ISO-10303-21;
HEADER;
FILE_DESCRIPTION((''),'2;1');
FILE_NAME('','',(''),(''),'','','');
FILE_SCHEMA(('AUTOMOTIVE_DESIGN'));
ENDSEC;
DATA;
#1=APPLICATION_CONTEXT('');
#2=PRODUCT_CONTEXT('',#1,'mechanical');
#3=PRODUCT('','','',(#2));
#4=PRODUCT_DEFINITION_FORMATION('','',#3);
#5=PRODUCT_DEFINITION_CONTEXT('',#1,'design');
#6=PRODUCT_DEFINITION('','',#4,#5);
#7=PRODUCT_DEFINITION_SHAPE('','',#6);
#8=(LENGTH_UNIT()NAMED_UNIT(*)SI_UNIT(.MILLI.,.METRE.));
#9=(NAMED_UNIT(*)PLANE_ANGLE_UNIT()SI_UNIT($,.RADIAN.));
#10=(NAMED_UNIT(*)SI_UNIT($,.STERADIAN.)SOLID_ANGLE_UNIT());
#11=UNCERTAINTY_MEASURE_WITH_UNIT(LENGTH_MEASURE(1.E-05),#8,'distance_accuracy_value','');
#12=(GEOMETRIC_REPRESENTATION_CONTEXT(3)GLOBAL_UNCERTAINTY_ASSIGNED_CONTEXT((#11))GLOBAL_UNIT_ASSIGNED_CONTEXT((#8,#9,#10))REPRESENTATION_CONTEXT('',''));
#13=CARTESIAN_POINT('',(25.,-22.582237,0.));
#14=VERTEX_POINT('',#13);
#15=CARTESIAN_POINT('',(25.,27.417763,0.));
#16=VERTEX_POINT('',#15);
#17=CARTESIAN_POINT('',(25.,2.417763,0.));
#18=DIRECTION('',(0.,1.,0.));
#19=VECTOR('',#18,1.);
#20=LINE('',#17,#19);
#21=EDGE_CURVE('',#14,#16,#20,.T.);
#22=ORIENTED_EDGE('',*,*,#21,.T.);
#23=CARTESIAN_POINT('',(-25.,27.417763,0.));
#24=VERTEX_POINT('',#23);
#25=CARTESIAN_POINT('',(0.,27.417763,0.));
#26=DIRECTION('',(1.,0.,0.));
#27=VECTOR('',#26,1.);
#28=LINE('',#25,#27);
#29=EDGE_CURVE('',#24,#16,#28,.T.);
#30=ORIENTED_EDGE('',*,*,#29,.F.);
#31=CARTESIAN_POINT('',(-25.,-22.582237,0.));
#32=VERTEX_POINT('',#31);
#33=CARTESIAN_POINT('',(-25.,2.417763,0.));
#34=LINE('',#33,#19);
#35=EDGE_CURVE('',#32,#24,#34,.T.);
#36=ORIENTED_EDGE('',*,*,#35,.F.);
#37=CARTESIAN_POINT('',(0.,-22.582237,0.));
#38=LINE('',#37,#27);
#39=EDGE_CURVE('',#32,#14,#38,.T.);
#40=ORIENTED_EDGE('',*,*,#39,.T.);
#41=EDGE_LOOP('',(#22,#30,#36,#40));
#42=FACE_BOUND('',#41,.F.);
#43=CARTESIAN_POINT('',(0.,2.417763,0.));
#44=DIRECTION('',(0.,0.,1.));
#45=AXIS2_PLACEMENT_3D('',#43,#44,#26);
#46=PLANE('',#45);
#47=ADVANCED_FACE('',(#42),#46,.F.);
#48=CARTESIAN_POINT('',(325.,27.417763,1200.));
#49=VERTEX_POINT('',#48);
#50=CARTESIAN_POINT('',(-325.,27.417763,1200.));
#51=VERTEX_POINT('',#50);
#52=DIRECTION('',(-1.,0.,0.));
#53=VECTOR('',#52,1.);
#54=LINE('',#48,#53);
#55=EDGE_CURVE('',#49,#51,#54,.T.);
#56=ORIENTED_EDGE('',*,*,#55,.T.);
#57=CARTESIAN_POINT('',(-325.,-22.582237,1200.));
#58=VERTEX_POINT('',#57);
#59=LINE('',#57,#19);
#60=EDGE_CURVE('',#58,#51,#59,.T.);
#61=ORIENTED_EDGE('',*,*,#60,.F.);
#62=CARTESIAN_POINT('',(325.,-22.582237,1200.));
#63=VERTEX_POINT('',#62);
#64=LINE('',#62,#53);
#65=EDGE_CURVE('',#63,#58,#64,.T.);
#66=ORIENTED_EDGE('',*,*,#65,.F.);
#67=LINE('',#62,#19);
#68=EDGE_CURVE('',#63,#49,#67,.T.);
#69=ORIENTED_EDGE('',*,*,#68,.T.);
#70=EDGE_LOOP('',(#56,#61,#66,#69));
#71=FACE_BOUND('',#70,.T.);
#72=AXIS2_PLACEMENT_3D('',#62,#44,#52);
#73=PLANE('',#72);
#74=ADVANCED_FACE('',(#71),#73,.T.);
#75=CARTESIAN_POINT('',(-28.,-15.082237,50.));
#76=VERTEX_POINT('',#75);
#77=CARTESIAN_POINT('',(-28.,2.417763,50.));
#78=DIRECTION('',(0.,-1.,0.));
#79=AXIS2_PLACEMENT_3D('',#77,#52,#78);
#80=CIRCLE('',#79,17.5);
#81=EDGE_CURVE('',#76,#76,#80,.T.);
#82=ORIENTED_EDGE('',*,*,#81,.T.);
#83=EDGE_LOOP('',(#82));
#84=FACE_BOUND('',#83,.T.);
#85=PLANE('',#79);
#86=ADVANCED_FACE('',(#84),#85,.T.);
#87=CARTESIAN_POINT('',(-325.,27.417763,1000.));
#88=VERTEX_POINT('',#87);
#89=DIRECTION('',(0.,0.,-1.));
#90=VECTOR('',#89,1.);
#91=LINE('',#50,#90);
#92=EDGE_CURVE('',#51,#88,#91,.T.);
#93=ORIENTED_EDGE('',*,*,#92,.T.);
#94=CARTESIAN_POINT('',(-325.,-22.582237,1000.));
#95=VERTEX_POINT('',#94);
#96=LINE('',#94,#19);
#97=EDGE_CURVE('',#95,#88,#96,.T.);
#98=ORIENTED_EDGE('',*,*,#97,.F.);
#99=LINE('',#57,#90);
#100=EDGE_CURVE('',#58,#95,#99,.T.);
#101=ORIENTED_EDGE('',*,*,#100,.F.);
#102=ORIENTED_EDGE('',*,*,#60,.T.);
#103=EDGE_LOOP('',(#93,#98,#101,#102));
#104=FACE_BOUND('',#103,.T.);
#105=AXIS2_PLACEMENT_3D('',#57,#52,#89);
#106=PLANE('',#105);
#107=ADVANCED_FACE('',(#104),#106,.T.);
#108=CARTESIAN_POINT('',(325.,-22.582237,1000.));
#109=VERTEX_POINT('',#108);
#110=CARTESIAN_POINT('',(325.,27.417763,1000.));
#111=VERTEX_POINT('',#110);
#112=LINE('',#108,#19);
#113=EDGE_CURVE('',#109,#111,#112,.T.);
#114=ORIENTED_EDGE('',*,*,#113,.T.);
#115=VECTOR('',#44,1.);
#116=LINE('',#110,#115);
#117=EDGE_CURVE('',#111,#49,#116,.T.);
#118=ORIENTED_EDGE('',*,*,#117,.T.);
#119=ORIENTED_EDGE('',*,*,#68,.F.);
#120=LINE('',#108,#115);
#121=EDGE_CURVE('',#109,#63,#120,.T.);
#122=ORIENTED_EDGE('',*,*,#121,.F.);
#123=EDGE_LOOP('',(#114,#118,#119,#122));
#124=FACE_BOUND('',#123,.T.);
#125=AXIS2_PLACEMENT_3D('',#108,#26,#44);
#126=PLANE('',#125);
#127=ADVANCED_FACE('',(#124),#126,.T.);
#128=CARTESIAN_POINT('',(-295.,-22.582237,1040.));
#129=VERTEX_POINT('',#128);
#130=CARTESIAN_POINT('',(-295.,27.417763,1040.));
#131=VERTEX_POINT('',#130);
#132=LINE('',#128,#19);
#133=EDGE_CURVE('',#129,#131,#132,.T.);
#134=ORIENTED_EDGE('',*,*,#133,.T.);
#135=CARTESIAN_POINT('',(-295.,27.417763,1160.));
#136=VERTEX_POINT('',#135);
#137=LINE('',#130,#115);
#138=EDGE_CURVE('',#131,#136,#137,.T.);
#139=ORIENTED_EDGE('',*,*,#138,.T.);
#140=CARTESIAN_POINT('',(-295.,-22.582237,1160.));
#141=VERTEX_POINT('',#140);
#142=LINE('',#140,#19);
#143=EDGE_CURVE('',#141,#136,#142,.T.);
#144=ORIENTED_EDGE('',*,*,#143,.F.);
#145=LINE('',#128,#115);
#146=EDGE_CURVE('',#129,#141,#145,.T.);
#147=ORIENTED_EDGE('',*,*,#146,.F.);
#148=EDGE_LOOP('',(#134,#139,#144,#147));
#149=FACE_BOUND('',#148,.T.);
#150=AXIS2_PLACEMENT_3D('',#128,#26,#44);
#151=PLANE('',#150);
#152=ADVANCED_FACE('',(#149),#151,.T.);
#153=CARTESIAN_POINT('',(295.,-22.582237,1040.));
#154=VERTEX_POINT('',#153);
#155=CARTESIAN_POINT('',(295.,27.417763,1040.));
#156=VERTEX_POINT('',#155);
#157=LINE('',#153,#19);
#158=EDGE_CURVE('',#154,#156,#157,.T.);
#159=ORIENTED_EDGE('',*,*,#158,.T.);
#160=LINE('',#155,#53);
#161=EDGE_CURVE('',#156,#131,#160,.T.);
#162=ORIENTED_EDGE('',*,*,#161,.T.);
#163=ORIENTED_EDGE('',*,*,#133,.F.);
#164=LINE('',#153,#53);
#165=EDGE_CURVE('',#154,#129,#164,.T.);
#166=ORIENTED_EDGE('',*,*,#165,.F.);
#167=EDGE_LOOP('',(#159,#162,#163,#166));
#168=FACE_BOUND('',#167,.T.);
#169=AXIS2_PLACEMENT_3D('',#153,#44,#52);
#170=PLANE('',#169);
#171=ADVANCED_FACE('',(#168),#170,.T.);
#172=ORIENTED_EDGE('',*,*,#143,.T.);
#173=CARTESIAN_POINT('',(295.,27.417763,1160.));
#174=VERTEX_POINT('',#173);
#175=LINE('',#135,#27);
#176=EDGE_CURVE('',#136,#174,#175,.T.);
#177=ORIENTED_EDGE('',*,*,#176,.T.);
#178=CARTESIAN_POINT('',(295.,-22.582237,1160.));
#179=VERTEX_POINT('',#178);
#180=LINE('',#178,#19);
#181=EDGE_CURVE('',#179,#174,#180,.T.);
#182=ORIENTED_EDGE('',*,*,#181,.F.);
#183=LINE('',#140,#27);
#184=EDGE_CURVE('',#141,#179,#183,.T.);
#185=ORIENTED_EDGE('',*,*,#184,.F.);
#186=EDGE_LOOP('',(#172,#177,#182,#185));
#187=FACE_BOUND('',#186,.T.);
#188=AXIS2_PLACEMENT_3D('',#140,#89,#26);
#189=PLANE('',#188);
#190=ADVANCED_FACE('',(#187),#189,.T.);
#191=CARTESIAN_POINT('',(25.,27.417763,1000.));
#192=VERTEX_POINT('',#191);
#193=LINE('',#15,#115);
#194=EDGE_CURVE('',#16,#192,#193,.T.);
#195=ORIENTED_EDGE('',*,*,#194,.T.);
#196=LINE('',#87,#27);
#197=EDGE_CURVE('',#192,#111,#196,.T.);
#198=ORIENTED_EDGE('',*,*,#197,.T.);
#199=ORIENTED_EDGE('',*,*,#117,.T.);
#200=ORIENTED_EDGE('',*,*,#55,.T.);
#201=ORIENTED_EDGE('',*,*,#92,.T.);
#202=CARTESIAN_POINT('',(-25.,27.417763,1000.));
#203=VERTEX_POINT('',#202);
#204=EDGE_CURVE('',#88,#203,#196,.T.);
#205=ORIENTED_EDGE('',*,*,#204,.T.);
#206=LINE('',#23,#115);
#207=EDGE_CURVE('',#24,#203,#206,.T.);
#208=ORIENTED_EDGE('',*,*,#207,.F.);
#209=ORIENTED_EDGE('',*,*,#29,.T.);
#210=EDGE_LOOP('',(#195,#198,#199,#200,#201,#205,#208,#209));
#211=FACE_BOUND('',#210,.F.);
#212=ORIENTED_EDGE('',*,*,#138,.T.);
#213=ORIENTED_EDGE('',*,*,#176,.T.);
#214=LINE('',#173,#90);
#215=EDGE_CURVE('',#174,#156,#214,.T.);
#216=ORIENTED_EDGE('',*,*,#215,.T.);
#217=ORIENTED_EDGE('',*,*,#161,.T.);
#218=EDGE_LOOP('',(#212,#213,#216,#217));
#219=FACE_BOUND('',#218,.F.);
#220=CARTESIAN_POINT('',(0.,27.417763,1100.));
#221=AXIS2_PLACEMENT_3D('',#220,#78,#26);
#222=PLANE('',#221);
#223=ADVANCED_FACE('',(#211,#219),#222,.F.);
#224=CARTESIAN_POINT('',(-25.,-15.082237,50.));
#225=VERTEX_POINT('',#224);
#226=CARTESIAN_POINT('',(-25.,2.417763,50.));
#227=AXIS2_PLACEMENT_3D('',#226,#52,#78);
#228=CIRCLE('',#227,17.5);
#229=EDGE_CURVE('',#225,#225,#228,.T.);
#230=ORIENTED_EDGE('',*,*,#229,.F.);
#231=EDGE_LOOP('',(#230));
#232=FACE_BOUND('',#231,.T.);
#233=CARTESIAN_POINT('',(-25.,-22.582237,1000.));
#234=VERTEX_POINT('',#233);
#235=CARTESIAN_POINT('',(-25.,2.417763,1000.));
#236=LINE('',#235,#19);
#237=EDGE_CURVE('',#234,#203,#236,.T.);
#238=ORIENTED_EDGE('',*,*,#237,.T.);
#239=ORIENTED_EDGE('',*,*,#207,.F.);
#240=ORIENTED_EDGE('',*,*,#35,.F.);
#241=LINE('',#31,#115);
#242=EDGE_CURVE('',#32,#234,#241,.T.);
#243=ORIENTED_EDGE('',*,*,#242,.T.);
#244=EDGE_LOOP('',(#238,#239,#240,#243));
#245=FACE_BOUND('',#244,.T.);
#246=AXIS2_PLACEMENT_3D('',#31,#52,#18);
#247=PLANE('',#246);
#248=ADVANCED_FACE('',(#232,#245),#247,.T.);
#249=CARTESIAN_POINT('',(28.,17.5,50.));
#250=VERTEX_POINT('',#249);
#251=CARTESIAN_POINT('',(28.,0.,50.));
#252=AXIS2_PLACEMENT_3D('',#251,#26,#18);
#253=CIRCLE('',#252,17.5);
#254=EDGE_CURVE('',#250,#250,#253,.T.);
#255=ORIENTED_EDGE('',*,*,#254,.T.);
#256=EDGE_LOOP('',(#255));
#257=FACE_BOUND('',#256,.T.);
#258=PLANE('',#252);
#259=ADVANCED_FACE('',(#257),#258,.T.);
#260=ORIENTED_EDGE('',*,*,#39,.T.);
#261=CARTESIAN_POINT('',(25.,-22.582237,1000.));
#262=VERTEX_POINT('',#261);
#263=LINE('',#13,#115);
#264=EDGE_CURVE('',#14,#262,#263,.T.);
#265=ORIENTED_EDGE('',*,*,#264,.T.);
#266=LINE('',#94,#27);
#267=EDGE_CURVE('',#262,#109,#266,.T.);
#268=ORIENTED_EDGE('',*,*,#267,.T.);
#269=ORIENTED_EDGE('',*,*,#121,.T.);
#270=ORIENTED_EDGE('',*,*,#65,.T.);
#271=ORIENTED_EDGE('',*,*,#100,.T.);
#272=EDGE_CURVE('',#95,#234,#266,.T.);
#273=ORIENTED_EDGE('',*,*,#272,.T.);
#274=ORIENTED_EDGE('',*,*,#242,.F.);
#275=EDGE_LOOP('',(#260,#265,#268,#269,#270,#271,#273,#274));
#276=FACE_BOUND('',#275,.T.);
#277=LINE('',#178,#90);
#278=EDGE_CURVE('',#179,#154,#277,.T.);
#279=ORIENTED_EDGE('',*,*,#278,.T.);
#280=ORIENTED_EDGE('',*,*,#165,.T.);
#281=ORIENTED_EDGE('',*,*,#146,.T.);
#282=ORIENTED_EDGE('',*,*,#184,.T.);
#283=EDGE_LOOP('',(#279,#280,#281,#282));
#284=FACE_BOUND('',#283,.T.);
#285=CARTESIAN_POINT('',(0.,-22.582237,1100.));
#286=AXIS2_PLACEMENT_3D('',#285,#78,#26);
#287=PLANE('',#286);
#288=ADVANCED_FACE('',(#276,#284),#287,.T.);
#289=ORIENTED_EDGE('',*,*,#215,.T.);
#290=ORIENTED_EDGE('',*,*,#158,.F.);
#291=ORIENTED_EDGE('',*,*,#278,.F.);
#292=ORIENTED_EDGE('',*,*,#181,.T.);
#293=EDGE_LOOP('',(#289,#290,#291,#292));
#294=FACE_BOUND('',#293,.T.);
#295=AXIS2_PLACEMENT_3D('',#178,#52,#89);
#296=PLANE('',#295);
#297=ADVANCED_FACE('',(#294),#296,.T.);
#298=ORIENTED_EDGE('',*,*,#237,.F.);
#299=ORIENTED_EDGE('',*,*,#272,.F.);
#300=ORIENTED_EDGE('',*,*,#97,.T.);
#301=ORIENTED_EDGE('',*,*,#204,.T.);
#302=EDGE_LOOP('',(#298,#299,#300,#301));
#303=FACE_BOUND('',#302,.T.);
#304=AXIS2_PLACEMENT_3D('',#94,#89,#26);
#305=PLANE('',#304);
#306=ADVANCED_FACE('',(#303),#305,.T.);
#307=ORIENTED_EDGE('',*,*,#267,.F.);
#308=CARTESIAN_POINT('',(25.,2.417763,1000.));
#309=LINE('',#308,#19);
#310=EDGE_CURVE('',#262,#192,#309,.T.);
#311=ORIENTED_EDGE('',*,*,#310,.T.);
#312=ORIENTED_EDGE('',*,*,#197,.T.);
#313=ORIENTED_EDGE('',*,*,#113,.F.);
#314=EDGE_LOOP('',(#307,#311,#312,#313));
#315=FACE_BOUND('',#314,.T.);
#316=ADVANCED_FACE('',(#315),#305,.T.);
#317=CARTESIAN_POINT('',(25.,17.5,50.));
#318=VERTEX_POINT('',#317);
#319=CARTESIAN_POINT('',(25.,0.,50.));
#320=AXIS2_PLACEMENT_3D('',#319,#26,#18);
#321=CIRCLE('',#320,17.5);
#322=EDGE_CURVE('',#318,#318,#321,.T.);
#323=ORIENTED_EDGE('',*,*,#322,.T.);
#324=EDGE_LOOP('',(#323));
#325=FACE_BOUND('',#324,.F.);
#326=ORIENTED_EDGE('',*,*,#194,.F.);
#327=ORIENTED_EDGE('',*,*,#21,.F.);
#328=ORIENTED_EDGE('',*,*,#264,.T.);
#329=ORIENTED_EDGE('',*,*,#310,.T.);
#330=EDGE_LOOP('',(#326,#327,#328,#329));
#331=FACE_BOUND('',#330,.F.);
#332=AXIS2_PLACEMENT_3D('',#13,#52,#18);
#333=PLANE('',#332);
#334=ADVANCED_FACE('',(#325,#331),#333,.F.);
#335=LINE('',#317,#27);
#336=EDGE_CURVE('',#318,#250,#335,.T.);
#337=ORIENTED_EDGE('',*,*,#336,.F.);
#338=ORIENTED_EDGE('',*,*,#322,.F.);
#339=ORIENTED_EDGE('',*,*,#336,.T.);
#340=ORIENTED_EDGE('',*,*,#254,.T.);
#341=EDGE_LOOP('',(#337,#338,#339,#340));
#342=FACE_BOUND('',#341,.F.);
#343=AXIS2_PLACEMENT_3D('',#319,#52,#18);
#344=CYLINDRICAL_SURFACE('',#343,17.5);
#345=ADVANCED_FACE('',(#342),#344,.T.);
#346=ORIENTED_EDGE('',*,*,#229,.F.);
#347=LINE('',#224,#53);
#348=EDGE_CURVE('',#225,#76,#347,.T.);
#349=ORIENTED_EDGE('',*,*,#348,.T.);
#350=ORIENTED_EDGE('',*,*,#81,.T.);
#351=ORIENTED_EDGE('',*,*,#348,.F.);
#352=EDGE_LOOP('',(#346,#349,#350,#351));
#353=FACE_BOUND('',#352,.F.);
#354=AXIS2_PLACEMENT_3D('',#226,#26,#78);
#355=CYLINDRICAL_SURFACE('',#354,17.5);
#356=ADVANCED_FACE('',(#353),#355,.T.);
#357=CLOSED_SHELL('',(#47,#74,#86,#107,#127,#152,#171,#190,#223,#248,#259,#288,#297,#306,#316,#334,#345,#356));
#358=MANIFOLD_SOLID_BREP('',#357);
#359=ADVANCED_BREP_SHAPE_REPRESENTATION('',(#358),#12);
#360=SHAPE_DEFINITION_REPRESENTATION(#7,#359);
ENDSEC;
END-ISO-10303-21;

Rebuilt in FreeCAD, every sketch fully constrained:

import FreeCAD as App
import Part
import Sketcher
from FreeCAD import Vector
Q = App.Units.Quantity


def add_polygon(sketch, points):
    """Adds a closed chain of lines whose ends are joined by coincident constraints."""
    first, n = sketch.GeometryCount, len(points)
    for a, b in zip(points, points[1:] + points[:1]):
        sketch.addGeometry(Part.LineSegment(App.Vector(*a, 0), App.Vector(*b, 0)), False)
    for i in range(n):
        sketch.addConstraint(Sketcher.Constraint("Coincident", first + i, 2, first + (i + 1) % n, 1))

doc = App.newDocument("Part")
body = doc.addObject("PartDesign::Body", "Body")

sketch1 = body.newObject("Sketcher::SketchObject", "Sketch")
sketch1.AttachmentSupport = (doc.getObject("XY_Plane"), [""])
sketch1.MapMode = "FlatFace"
add_polygon(sketch1, [(-25, 27), (-25, -23), (25, -23), (25, 27)])
sketch1.addConstraint([
    Sketcher.Constraint("Vertical", 0),
    Sketcher.Constraint("Horizontal", 1),
    Sketcher.Constraint("Vertical", 2),
    Sketcher.Constraint("Horizontal", 3),
    Sketcher.Constraint("Equal", 3, 0),
    Sketcher.Constraint("DistanceX", 1, 1, 1, 2, Q("50 mm")),
    Sketcher.Constraint("DistanceX", 0, 2, -1, 1, Q("25 mm")),
    Sketcher.Constraint("DistanceY", 0, 2, -1, 1, Q("22.582237 mm")),
])
pad1 = body.newObject("PartDesign::Pad", "Pad")
pad1.Profile = sketch1
pad1.Length = 1000

sketch2 = body.newObject("Sketcher::SketchObject", "Sketch001")
sketch2.AttachmentSupport = (doc.getObject("XZ_Plane"), [""])
sketch2.MapMode = "FlatFace"
sketch2.AttachmentOffset = App.Placement(Vector(0, 0, 22.582237), App.Rotation())
add_polygon(sketch2, [(325, 1000), (325, 1200), (-325, 1200), (-325, 1000)])
add_polygon(sketch2, [(295, 1040), (-295, 1040), (-295, 1160), (295, 1160)])
sketch2.addConstraint([
    Sketcher.Constraint("Vertical", 0),
    Sketcher.Constraint("Horizontal", 1),
    Sketcher.Constraint("Vertical", 2),
    Sketcher.Constraint("Horizontal", 3),
    Sketcher.Constraint("Horizontal", 4),
    Sketcher.Constraint("Vertical", 5),
    Sketcher.Constraint("Horizontal", 6),
    Sketcher.Constraint("Vertical", 7),
    Sketcher.Constraint("DistanceX", 1, 2, 1, 1, Q("650 mm")),
    Sketcher.Constraint("DistanceX", 4, 2, 4, 1, Q("590 mm")),
    Sketcher.Constraint("DistanceY", 0, 1, 0, 2, Q("200 mm")),
    Sketcher.Constraint("DistanceY", 5, 1, 5, 2, Q("120 mm")),
    Sketcher.Constraint("DistanceX", -1, 1, 0, 2, Q("325 mm")),
    Sketcher.Constraint("DistanceY", -1, 1, 0, 2, Q("1200 mm")),
    Sketcher.Constraint("DistanceX", 4, 2, -1, 1, Q("295 mm")),
    Sketcher.Constraint("DistanceY", -1, 1, 4, 2, Q("1040 mm")),
])
pad2 = body.newObject("PartDesign::Pad", "Pad001")
pad2.Profile = sketch2
pad2.Length = 50
pad2.Reversed = True

sketch3 = body.newObject("Sketcher::SketchObject", "Sketch002")
sketch3.AttachmentSupport = (doc.getObject("YZ_Plane"), [""])
sketch3.MapMode = "FlatFace"
sketch3.AttachmentOffset = App.Placement(Vector(0, 0, 25), App.Rotation())
sketch3.addGeometry(Part.Circle(Vector(0, 50, 0), Vector(0, 0, 1), 18), False)
sketch3.addConstraint([
    Sketcher.Constraint("PointOnObject", 0, 3, -2),
    Sketcher.Constraint("Diameter", 0, Q("35 mm")),
    Sketcher.Constraint("DistanceY", -1, 1, 0, 3, Q("50 mm")),
])
pad3 = body.newObject("PartDesign::Pad", "Pad002")
pad3.Profile = sketch3
pad3.Length = 3

sketch4 = body.newObject("Sketcher::SketchObject", "Sketch003")
sketch4.AttachmentSupport = (doc.getObject("YZ_Plane"), [""])
sketch4.MapMode = "FlatFace"
sketch4.AttachmentOffset = App.Placement(Vector(0, 0, -25), App.Rotation())
sketch4.addGeometry(Part.Circle(Vector(2, 50, 0), Vector(0, 0, 1), 18), False)
sketch4.addConstraint([
    Sketcher.Constraint("Diameter", 0, Q("35 mm")),
    Sketcher.Constraint("DistanceY", -1, 1, 0, 3, Q("50 mm")),
    Sketcher.Constraint("DistanceX", -1, 1, 0, 3, Q("2.417763 mm")),
])
pad4 = body.newObject("PartDesign::Pad", "Pad003")
pad4.Profile = sketch4
pad4.Length = 3
pad4.Reversed = True

doc.recompute()
